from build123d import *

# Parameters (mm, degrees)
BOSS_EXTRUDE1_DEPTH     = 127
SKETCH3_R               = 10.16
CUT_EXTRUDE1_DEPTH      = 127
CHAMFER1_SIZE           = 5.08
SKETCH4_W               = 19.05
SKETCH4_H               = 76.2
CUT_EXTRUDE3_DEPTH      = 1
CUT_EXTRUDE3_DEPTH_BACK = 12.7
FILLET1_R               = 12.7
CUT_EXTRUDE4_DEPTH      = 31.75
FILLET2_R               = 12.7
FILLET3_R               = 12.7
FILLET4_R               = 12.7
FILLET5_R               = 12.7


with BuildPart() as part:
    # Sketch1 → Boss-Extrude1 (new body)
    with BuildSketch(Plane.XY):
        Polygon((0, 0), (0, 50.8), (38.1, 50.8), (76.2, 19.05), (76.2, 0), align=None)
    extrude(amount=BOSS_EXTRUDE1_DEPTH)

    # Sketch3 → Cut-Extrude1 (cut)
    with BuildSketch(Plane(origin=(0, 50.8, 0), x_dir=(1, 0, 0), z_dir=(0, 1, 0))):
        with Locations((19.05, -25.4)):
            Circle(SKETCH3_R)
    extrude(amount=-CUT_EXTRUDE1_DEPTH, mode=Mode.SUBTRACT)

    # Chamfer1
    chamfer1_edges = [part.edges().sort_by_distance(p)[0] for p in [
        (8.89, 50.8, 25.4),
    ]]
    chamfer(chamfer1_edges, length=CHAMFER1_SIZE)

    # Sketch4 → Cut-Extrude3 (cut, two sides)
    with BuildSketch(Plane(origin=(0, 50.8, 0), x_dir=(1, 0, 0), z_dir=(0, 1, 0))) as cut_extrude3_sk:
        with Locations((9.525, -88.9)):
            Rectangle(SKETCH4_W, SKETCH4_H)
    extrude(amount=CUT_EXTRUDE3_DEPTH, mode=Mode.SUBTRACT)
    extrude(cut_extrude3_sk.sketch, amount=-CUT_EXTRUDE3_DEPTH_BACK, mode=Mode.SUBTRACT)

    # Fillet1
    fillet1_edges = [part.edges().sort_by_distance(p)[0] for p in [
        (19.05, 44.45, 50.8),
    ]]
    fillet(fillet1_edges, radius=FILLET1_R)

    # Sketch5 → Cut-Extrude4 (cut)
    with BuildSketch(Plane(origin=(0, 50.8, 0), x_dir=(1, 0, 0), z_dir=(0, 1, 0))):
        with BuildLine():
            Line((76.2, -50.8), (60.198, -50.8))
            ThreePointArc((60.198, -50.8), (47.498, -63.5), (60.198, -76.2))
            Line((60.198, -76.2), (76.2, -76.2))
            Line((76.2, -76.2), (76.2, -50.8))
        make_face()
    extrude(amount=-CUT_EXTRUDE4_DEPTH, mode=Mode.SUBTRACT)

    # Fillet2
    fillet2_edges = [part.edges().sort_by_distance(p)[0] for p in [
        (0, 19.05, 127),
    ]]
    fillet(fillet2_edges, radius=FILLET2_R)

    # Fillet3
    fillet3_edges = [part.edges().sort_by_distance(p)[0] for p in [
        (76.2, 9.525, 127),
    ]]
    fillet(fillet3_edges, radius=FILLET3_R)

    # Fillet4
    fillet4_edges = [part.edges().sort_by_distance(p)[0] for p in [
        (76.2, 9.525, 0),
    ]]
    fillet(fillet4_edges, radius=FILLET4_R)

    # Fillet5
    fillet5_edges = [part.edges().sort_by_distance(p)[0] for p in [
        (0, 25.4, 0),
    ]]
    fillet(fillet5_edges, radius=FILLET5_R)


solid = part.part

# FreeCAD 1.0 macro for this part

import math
import FreeCAD as App
import Part
import Sketcher
from FreeCAD import Vector
Q = App.Units.Quantity


def edges_at(feature, points):
    """Names of the edges that pass closest to the given points."""
    edges = feature.Shape.Edges
    near = lambda p: min(range(len(edges)), key=lambda i: edges[i].distToShape(Part.Vertex(*p))[0])
    return sorted({f"Edge{near(p) + 1}" for p in points})

doc = App.newDocument("Part")
body = doc.addObject("PartDesign::Body", "Body")

sketch1 = body.newObject("Sketcher::SketchObject", "Sketch")
sketch1.AttachmentSupport = (doc.getObject("XY_Plane"), [""])
sketch1.MapMode = "FlatFace"
sketch1.addGeometry([
    Part.LineSegment(Vector(0, 51, 0), Vector(0, 0, 0)),
    Part.LineSegment(Vector(0, 0, 0), Vector(76, 0, 0)),
    Part.LineSegment(Vector(76, 0, 0), Vector(76, 19, 0)),
    Part.LineSegment(Vector(76, 19, 0), Vector(38, 51, 0)),
    Part.LineSegment(Vector(38, 51, 0), Vector(0, 51, 0)),
], False)
sketch1.addConstraint([
    Sketcher.Constraint("Coincident", 0, 2, 1, 1),
    Sketcher.Constraint("Coincident", 1, 2, 2, 1),
    Sketcher.Constraint("Coincident", 2, 2, 3, 1),
    Sketcher.Constraint("Coincident", 3, 2, 4, 1),
    Sketcher.Constraint("Coincident", 4, 2, 0, 1),
    Sketcher.Constraint("Vertical", 0),
    Sketcher.Constraint("Horizontal", 1),
    Sketcher.Constraint("Vertical", 2),
    Sketcher.Constraint("Horizontal", 4),
    Sketcher.Constraint("Coincident", 0, 2, -1, 1),
    Sketcher.Constraint("DistanceX", 1, 1, 1, 2, Q("3 in")),
    Sketcher.Constraint("DistanceY", 0, 2, 0, 1, Q("2 in")),
    Sketcher.Constraint("DistanceX", 4, 2, 4, 1, Q("1.5 in")),
    Sketcher.Constraint("DistanceY", 2, 1, 2, 2, Q("0.75 in")),
])
pad1 = body.newObject("PartDesign::Pad", "Pad")
pad1.Profile = sketch1
pad1.Length = Q("5 in")

sketch2 = body.newObject("Sketcher::SketchObject", "Sketch001")
sketch2.AttachmentSupport = (doc.getObject("XZ_Plane"), [""])
sketch2.MapMode = "FlatFace"
sketch2.AttachmentOffset = App.Placement(Vector(0, 0, -2 * 25.4), App.Rotation())
sketch2.addGeometry(Part.Circle(Vector(19, 25, 0), Vector(0, 0, 1), 10), False)
sketch2.addConstraint([
    Sketcher.Constraint("Diameter", 0, Q("0.8 in")),
    Sketcher.Constraint("DistanceY", -1, 1, 0, 3, Q("1 in")),
    Sketcher.Constraint("DistanceX", -1, 1, 0, 3, Q("0.75 in")),
])
pocket1 = body.newObject("PartDesign::Pocket", "Pocket")
pocket1.Profile = sketch2
pocket1.Length = Q("5 in")
pocket1.Reversed = True
doc.recompute()

chamfer = body.newObject("PartDesign::Chamfer", "Chamfer")
chamfer.Base = (pocket1, edges_at(pocket1, [(8.89, 50.8, 25.4)]))
chamfer.Size = Q("0.2 in")

sketch3 = body.newObject("Sketcher::SketchObject", "Sketch002")
sketch3.AttachmentSupport = (doc.getObject("XZ_Plane"), [""])
sketch3.MapMode = "FlatFace"
sketch3.AttachmentOffset = App.Placement(Vector(0, 0, -2 * 25.4), App.Rotation())
sketch3.addGeometry([
    Part.LineSegment(Vector(0, 51, 0), Vector(0, 127, 0)),
    Part.LineSegment(Vector(0, 127, 0), Vector(19, 127, 0)),
    Part.LineSegment(Vector(19, 127, 0), Vector(19, 51, 0)),
    Part.LineSegment(Vector(19, 51, 0), Vector(0, 51, 0)),
], False)
sketch3.addConstraint([
    Sketcher.Constraint("Coincident", 0, 2, 1, 1),
    Sketcher.Constraint("Coincident", 1, 2, 2, 1),
    Sketcher.Constraint("Coincident", 2, 2, 3, 1),
    Sketcher.Constraint("Coincident", 3, 2, 0, 1),
    Sketcher.Constraint("Vertical", 0),
    Sketcher.Constraint("Horizontal", 1),
    Sketcher.Constraint("Vertical", 2),
    Sketcher.Constraint("Horizontal", 3),
    Sketcher.Constraint("PointOnObject", 0, 2, -2),
    Sketcher.Constraint("DistanceY", 0, 1, 0, 2, Q("3 in")),
    Sketcher.Constraint("DistanceY", -1, 1, 0, 2, Q("5 in")),
    Sketcher.Constraint("DistanceX", 1, 1, 1, 2, Q("0.75 in")),
])
pocket2 = body.newObject("PartDesign::Pocket", "Pocket001")
pocket2.Profile = sketch3
pocket2.Type = "TwoLengths"
pocket2.Length = 1
pocket2.Length2 = Q("0.5 in")
doc.recompute()

fillet = body.newObject("PartDesign::Fillet", "Fillet")
fillet.Base = (pocket2, edges_at(pocket2, [(19.05, 44.45, 50.8)]))
fillet.Radius = Q("0.5 in")

sketch4 = body.newObject("Sketcher::SketchObject", "Sketch003")
sketch4.AttachmentSupport = (doc.getObject("XZ_Plane"), [""])
sketch4.MapMode = "FlatFace"
sketch4.AttachmentOffset = App.Placement(Vector(0, 0, -2 * 25.4), App.Rotation())
sketch4.addGeometry([
    Part.LineSegment(Vector(76, 51, 0), Vector(60, 51, 0)),
    Part.ArcOfCircle(Part.Circle(Vector(60, 64, 0), Vector(0, 0, 1), 13), math.radians(90), math.radians(270)),
    Part.LineSegment(Vector(60, 76, 0), Vector(76, 76, 0)),
    Part.LineSegment(Vector(76, 76, 0), Vector(76, 51, 0)),
], False)
sketch4.addConstraint([
    Sketcher.Constraint("Tangent", 0, 2, 1, 2),
    Sketcher.Constraint("Tangent", 1, 1, 2, 1),
    Sketcher.Constraint("Coincident", 2, 2, 3, 1),
    Sketcher.Constraint("Coincident", 3, 2, 0, 1),
    Sketcher.Constraint("Horizontal", 0),
    Sketcher.Constraint("Horizontal", 2),
    Sketcher.Constraint("Vertical", 3),
    Sketcher.Constraint("Radius", 1, Q("0.5 in")),
    Sketcher.Constraint("DistanceY", -1, 1, 0, 2, Q("2 in")),
    Sketcher.Constraint("DistanceX", -1, 1, 2, 2, Q("3 in")),
    Sketcher.Constraint("DistanceX", 0, 2, 0, 1, Q("0.63 in")),
])
pocket3 = body.newObject("PartDesign::Pocket", "Pocket002")
pocket3.Profile = sketch4
pocket3.Length = Q("1.25 in")
pocket3.Reversed = True
doc.recompute()

fillet2 = body.newObject("PartDesign::Fillet", "Fillet001")
fillet2.Base = (pocket3, edges_at(pocket3, [(0, 19.05, 127)]))
fillet2.Radius = Q("0.5 in")
doc.recompute()

fillet3 = body.newObject("PartDesign::Fillet", "Fillet002")
fillet3.Base = (fillet2, edges_at(fillet2, [(76.2, 9.525, 127)]))
fillet3.Radius = Q("0.5 in")
doc.recompute()

fillet4 = body.newObject("PartDesign::Fillet", "Fillet003")
fillet4.Base = (fillet3, edges_at(fillet3, [(76.2, 9.525, 0)]))
fillet4.Radius = Q("0.5 in")
doc.recompute()

fillet5 = body.newObject("PartDesign::Fillet", "Fillet004")
fillet5.Base = (fillet4, edges_at(fillet4, [(0, 25.4, 0)]))
fillet5.Radius = Q("0.5 in")

doc.recompute()
